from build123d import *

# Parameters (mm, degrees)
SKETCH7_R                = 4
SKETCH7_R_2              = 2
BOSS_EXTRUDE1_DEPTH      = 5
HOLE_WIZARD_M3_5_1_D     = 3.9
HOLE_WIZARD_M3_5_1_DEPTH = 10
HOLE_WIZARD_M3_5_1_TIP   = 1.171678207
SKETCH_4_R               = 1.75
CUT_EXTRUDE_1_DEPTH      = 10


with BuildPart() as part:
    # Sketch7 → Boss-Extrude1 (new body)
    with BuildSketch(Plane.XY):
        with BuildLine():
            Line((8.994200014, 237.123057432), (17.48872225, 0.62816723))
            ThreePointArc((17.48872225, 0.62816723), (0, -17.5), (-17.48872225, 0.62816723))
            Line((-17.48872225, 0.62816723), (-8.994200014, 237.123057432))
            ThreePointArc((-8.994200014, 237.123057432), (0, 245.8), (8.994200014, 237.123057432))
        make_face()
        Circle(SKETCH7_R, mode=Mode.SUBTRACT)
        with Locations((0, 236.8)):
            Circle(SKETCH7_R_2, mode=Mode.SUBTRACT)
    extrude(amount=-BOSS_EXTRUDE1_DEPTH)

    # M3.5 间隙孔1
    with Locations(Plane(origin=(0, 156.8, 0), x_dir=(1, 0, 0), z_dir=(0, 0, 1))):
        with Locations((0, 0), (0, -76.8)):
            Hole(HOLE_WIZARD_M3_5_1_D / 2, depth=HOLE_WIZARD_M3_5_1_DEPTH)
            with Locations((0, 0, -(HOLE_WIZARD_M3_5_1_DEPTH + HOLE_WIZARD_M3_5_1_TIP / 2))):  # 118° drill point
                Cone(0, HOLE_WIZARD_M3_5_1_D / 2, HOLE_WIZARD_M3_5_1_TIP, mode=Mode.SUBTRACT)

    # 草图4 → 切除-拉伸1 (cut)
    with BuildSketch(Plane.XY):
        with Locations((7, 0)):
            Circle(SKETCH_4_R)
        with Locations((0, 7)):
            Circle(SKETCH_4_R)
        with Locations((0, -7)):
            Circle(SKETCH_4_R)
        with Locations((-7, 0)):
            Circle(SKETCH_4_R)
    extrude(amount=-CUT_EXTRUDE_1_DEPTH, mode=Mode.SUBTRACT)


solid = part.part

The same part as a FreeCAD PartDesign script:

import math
import FreeCAD as App
import Part
import Sketcher
from FreeCAD import Vector
Q = App.Units.Quantity

doc = App.newDocument("Part")
body = doc.addObject("PartDesign::Body", "Body")

# Sketch on XY plane
sketch1 = body.newObject("Sketcher::SketchObject", "Sketch")
sketch1.AttachmentSupport = (doc.getObject("XY_Plane"), [""])
sketch1.MapMode = "FlatFace"
sketch1.addGeometry([
    Part.LineSegment(Vector(17.488722, 0.628167, 0), Vector(8.9942, 237.123057, 0)),  # 0
    Part.ArcOfCircle(Part.Circle(Vector(0, 236.8, 0), Vector(0, 0, 1), 9), math.radians(2.057089), math.radians(177.942911)),  # 1
    Part.LineSegment(Vector(-8.9942, 237.123057, 0), Vector(-17.488722, 0.628167, 0)),  # 2
    Part.ArcOfCircle(Part.Circle(Vector(0, 0, 0), Vector(0, 0, 1), 17.5), math.radians(177.942911), math.radians(362.057089)),  # 3
    Part.Circle(Vector(0, 0, 0), Vector(0, 0, 1), 4),  # 4
    Part.Circle(Vector(0, 236.8, 0), Vector(0, 0, 1), 2),  # 5
], False)
sketch1.addConstraint([
    Sketcher.Constraint("Tangent", 0, 2, 1, 1),
    Sketcher.Constraint("Tangent", 1, 2, 2, 1),
    Sketcher.Constraint("Tangent", 2, 2, 3, 1),
    Sketcher.Constraint("Tangent", 3, 2, 0, 1),
    Sketcher.Constraint("Coincident", 3, 3, -1, 1),
    Sketcher.Constraint("Coincident", 4, 3, -1, 1),
    Sketcher.Constraint("Coincident", 5, 3, 1, 3),
    Sketcher.Constraint("PointOnObject", 1, 3, -2),
    Sketcher.Constraint("Diameter", 4, Q("8 mm")),
    Sketcher.Constraint("Diameter", 5, Q("4 mm")),
    Sketcher.Constraint("Radius", 1, Q("9 mm")),
    Sketcher.Constraint("Radius", 3, Q("17.5 mm")),
    Sketcher.Constraint("DistanceY", -1, 1, 1, 3, Q("236.8 mm")),
])
pad1 = body.newObject("PartDesign::Pad", "Pad")
pad1.Profile = sketch1
pad1.Length = 5
pad1.Reversed = True

# Sketch on XY plane
sketch2 = body.newObject("Sketcher::SketchObject", "Sketch001")
sketch2.AttachmentSupport = (doc.getObject("XY_Plane"), [""])
sketch2.MapMode = "FlatFace"
sketch2.addGeometry([
    Part.Circle(Vector(0, 156.8, 0), Vector(0, 0, 1), 1.95),
    Part.Circle(Vector(0, 80, 0), Vector(0, 0, 1), 1.95),
], False)
sketch2.addConstraint([
    Sketcher.Constraint("Equal", 0, 1),
    Sketcher.Constraint("PointOnObject", 0, 3, -2),
    Sketcher.Constraint("PointOnObject", 1, 3, -2),
    Sketcher.Constraint("Diameter", 0, Q("3.9 mm")),
    Sketcher.Constraint("DistanceY", -1, 1, 1, 3, Q("80 mm")),
    Sketcher.Constraint("DistanceY", -1, 1, 0, 3, Q("156.8 mm")),
])
doc.recompute()
hole = body.newObject("PartDesign::Hole", "Hole")
hole.Profile = sketch2
hole.ThreadType = "None"
hole.Diameter = 3.9
hole.DepthType = "Dimension"
hole.Depth = 10
hole.DrillPoint = "Angled"
hole.DrillPointAngle = 118

# Sketch on XY plane
sketch3 = body.newObject("Sketcher::SketchObject", "Sketch002")
sketch3.AttachmentSupport = (doc.getObject("XY_Plane"), [""])
sketch3.MapMode = "FlatFace"
sketch3.addGeometry([
    Part.Circle(Vector(7, 0, 0), Vector(0, 0, 1), 1.75),
    Part.Circle(Vector(0, 7, 0), Vector(0, 0, 1), 1.75),
    Part.Circle(Vector(0, -7, 0), Vector(0, 0, 1), 1.75),
    Part.Circle(Vector(-7, 0, 0), Vector(0, 0, 1), 1.75),
], False)
sketch3.addConstraint([
    Sketcher.Constraint("Equal", 0, 1),
    Sketcher.Constraint("Equal", 1, 2),
    Sketcher.Constraint("Equal", 2, 3),
    Sketcher.Constraint("Symmetric", 1, 3, 2, 3, -1, 1),
    Sketcher.Constraint("Symmetric", 0, 3, 3, 3, -1, 1),
    Sketcher.Constraint("PointOnObject", 0, 3, -1),
    Sketcher.Constraint("PointOnObject", 1, 3, -2),
    Sketcher.Constraint("Diameter", 0, Q("3.5 mm")),
    Sketcher.Constraint("DistanceX", -1, 1, 0, 3, Q("7 mm")),
    Sketcher.Constraint("DistanceY", -1, 1, 1, 3, Q("7 mm")),
])
pocket1 = body.newObject("PartDesign::Pocket", "Pocket")
pocket1.Profile = sketch3
pocket1.Length = 10

doc.recompute()
